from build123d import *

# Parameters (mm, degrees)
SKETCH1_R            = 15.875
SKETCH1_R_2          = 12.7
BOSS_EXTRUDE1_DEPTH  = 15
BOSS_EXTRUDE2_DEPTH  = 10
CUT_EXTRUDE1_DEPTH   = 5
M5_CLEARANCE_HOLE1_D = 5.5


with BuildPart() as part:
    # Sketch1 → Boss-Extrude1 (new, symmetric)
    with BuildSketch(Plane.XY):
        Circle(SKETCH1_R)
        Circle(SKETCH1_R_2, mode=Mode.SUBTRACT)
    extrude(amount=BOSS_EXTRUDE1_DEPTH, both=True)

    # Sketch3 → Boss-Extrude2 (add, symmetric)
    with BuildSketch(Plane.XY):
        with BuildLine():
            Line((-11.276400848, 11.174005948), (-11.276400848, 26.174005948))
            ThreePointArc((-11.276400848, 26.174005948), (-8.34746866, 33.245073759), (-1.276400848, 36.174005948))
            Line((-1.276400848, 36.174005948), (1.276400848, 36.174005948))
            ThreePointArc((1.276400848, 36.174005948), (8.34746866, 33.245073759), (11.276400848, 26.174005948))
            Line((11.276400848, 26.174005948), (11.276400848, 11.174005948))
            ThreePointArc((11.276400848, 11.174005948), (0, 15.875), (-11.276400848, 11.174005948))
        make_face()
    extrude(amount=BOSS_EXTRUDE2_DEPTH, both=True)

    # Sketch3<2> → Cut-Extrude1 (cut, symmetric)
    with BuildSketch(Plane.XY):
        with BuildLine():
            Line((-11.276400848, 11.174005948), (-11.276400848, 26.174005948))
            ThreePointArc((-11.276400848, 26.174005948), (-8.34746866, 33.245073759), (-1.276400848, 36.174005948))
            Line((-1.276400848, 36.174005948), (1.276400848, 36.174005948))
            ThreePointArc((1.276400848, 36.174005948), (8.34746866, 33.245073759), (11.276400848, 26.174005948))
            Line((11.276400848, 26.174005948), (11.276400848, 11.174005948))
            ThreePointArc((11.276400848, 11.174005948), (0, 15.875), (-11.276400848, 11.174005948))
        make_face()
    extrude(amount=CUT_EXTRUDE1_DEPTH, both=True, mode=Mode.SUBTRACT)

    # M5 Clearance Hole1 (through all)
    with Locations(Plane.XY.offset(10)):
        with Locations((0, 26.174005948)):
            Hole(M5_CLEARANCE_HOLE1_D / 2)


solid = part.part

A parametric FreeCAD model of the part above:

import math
import FreeCAD as App
import Part
import Sketcher

V = App.Vector

doc = App.newDocument("Part")
body = doc.addObject("PartDesign::Body", "Body")

# Sketch on XY plane
sketch1 = body.newObject("Sketcher::SketchObject", "Sketch")
sketch1.AttachmentSupport = (doc.getObject("XY_Plane"), [""])
sketch1.MapMode = "FlatFace"
sketch1.addGeometry([
    Part.Circle(V(0, 0, 0), V(0, 0, 1), 16),
    Part.Circle(V(0, 0, 0), V(0, 0, 1), 13),
], False)
sketch1.addConstraint([
    Sketcher.Constraint("Coincident", 0, 3, -1, 1),
    Sketcher.Constraint("Coincident", 1, 3, -1, 1),
    Sketcher.Constraint("Diameter", 1, 25.4),
    Sketcher.Constraint("Diameter", 0, 31.75),
])
pad1 = body.newObject("PartDesign::Pad", "Pad")
pad1.Profile = sketch1
pad1.Length = 30
pad1.Midplane = True

# Sketch on XY plane
sketch2 = body.newObject("Sketcher::SketchObject", "Sketch001")
sketch2.AttachmentSupport = (doc.getObject("XY_Plane"), [""])
sketch2.MapMode = "FlatFace"
sketch2.addGeometry([
    Part.LineSegment(V(-11.3, 26.2, 0), V(-11.3, 11.2, 0)),  # 0
    Part.ArcOfCircle(Part.Circle(V(0, 0, 0), V(0, 0, 1), 15.9), math.radians(45), math.radians(135)),  # 1
    Part.LineSegment(V(11.3, 11.2, 0), V(11.3, 26.2, 0)),  # 2
    Part.ArcOfCircle(Part.Circle(V(1.3, 26.2, 0), V(0, 0, 1), 10), math.radians(0), math.radians(90)),  # 3
    Part.LineSegment(V(1.3, 36.2, 0), V(-1.3, 36.2, 0)),  # 4
    Part.ArcOfCircle(Part.Circle(V(-1.3, 26.2, 0), V(0, 0, 1), 10), math.radians(90), math.radians(180)),  # 5
], False)
sketch2.addConstraint([
    Sketcher.Constraint("Coincident", 0, 2, 1, 2),
    Sketcher.Constraint("Coincident", 1, 1, 2, 1),
    Sketcher.Constraint("Tangent", 2, 2, 3, 1),
    Sketcher.Constraint("Tangent", 3, 2, 4, 1),
    Sketcher.Constraint("Tangent", 4, 2, 5, 1),
    Sketcher.Constraint("Tangent", 5, 2, 0, 1),
    Sketcher.Constraint("Vertical", 0),
    Sketcher.Constraint("Vertical", 2),
    Sketcher.Constraint("Horizontal", 4),
    Sketcher.Constraint("Coincident", 1, 3, -1, 1),
    Sketcher.Constraint("Equal", 3, 5),
    Sketcher.Constraint("Horizontal", 0, 2, 1, 1),
    Sketcher.Constraint("Radius", 3, 10.0),
    Sketcher.Constraint("DistanceY", 0, 2, 0, 1, 15.0),
    Sketcher.Constraint("Radius", 1, 15.875),
    Sketcher.Constraint("DistanceX", 4, 2, 4, 1, 2.552802),
])
pad2 = body.newObject("PartDesign::Pad", "Pad001")
pad2.Profile = sketch2
pad2.Length = 20
pad2.Midplane = True

# Sketch on XY plane
sketch3 = body.newObject("Sketcher::SketchObject", "Sketch002")
sketch3.AttachmentSupport = (doc.getObject("XY_Plane"), [""])
sketch3.MapMode = "FlatFace"
sketch3.addGeometry([
    Part.LineSegment(V(-11.3, 26.2, 0), V(-11.3, 11.2, 0)),  # 0
    Part.ArcOfCircle(Part.Circle(V(0, 0, 0), V(0, 0, 1), 15.9), math.radians(45), math.radians(135)),  # 1
    Part.LineSegment(V(11.3, 11.2, 0), V(11.3, 26.2, 0)),  # 2
    Part.ArcOfCircle(Part.Circle(V(1.3, 26.2, 0), V(0, 0, 1), 10), math.radians(0), math.radians(90)),  # 3
    Part.LineSegment(V(1.3, 36.2, 0), V(-1.3, 36.2, 0)),  # 4
    Part.ArcOfCircle(Part.Circle(V(-1.3, 26.2, 0), V(0, 0, 1), 10), math.radians(90), math.radians(180)),  # 5
], False)
sketch3.addConstraint([
    Sketcher.Constraint("Coincident", 0, 2, 1, 2),
    Sketcher.Constraint("Coincident", 1, 1, 2, 1),
    Sketcher.Constraint("Tangent", 2, 2, 3, 1),
    Sketcher.Constraint("Tangent", 3, 2, 4, 1),
    Sketcher.Constraint("Tangent", 4, 2, 5, 1),
    Sketcher.Constraint("Tangent", 5, 2, 0, 1),
    Sketcher.Constraint("Vertical", 0),
    Sketcher.Constraint("Vertical", 2),
    Sketcher.Constraint("Horizontal", 4),
    Sketcher.Constraint("Coincident", 1, 3, -1, 1),
    Sketcher.Constraint("Equal", 3, 5),
    Sketcher.Constraint("Horizontal", 0, 2, 1, 1),
    Sketcher.Constraint("Radius", 3, 10.0),
    Sketcher.Constraint("DistanceY", 0, 2, 0, 1, 15.0),
    Sketcher.Constraint("Radius", 1, 15.875),
    Sketcher.Constraint("DistanceX", 4, 2, 4, 1, 2.552802),
])
pocket1 = body.newObject("PartDesign::Pocket", "Pocket")
pocket1.Profile = sketch3
pocket1.Length = 10
pocket1.Midplane = True

# Sketch on XY plane
sketch4 = body.newObject("Sketcher::SketchObject", "Sketch003")
sketch4.AttachmentSupport = (doc.getObject("XY_Plane"), [""])
sketch4.MapMode = "FlatFace"
sketch4.AttachmentOffset = App.Placement(V(0, 0, 10), App.Rotation())
sketch4.addGeometry(Part.Circle(V(0, 26.2, 0), V(0, 0, 1), 2.8), False)
sketch4.addConstraint([
    Sketcher.Constraint("PointOnObject", 0, 3, -2),
    Sketcher.Constraint("Diameter", 0, 5.5),
    Sketcher.Constraint("DistanceY", -1, 1, 0, 3, 26.174006),
])
doc.recompute()
hole = body.newObject("PartDesign::Hole", "Hole")
hole.Profile = sketch4
hole.ThreadType = "None"
hole.Diameter = 5.5
hole.DepthType = "ThroughAll"

doc.recompute()
